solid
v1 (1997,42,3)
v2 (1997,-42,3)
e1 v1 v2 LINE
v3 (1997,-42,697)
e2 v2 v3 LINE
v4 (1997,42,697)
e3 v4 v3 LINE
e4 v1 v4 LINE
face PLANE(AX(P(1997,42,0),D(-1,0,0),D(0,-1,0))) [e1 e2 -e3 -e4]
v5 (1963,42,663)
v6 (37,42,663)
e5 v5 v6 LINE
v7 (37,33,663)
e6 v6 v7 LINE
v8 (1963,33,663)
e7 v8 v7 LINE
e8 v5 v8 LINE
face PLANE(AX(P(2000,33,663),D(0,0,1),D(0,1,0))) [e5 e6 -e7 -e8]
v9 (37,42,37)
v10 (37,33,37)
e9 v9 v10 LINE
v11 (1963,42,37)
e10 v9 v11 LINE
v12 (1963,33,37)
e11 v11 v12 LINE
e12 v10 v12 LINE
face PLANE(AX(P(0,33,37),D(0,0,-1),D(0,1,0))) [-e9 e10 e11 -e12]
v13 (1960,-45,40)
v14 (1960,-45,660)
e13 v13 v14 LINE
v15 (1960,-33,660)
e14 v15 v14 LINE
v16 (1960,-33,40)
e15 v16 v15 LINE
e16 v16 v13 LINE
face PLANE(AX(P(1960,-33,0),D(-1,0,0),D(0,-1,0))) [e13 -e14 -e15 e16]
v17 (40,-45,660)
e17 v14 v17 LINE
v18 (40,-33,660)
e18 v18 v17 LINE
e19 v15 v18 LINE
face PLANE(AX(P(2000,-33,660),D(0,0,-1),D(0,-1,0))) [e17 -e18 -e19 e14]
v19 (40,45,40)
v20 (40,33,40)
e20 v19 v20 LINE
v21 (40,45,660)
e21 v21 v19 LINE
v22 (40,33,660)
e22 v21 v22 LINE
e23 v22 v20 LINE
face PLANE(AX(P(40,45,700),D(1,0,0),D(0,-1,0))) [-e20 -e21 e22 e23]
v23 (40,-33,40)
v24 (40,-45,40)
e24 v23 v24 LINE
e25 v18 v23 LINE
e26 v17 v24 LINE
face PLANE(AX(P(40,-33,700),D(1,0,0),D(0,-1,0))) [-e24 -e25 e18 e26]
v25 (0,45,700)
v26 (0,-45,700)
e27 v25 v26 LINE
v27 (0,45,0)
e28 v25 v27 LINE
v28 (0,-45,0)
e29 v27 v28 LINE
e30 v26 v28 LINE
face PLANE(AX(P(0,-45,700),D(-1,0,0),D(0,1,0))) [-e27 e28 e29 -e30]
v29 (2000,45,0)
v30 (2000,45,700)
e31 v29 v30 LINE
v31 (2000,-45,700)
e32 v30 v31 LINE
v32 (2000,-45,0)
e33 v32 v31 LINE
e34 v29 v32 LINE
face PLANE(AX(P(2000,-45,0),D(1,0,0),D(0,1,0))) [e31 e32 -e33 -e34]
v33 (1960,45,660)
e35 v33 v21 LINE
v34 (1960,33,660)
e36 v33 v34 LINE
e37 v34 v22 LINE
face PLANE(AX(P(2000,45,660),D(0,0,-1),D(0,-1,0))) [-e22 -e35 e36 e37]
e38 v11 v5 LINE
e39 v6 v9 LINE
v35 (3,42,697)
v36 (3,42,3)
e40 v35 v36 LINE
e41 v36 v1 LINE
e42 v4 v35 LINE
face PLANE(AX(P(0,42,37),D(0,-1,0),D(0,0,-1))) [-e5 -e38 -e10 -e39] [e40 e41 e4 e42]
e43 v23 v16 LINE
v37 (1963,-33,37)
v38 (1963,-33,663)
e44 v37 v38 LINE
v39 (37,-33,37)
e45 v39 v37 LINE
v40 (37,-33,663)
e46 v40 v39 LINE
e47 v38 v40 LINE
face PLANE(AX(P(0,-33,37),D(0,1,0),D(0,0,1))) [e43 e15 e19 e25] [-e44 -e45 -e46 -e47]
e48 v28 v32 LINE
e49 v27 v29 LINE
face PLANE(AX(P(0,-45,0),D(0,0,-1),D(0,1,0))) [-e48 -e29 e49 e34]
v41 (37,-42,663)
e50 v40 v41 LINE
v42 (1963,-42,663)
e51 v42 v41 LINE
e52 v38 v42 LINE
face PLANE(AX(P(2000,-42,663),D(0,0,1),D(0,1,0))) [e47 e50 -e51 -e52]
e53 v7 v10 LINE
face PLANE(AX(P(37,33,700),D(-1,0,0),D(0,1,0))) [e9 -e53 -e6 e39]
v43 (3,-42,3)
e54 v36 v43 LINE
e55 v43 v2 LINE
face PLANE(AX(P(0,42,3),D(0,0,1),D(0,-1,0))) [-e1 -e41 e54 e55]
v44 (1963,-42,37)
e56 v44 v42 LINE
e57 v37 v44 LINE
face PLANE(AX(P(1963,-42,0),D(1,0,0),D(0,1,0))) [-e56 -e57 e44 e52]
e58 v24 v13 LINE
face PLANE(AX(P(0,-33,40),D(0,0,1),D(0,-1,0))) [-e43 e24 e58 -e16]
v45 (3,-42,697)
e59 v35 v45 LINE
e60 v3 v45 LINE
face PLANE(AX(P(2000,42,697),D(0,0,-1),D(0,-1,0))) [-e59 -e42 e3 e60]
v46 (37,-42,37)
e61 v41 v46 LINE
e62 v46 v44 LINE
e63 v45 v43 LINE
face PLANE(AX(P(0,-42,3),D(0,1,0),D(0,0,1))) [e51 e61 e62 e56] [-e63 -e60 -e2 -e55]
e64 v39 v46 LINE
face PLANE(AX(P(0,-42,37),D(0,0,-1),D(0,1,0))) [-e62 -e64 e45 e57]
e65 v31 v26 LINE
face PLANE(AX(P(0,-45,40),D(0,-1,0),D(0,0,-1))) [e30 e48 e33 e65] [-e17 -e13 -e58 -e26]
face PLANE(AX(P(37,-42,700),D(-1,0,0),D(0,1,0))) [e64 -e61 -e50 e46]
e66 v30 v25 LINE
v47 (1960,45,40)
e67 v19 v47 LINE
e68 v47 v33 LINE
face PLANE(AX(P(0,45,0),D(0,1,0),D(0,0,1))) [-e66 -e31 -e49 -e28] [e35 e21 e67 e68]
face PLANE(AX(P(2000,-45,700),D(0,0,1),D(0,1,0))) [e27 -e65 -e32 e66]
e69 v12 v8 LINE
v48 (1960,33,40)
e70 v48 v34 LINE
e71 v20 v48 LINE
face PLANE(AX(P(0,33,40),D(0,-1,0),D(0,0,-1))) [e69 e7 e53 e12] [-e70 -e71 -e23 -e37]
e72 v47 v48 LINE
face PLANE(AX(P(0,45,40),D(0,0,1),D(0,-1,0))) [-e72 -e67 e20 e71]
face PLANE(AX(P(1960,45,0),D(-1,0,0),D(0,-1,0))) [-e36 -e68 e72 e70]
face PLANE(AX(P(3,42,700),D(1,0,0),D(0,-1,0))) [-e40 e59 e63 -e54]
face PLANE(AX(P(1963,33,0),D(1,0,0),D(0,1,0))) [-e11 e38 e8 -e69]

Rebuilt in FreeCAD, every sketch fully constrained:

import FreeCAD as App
import Part
import Sketcher

V = App.Vector

doc = App.newDocument("Part")
body = doc.addObject("PartDesign::Body", "Body")

# Sketch on YZ plane
sketch1 = body.newObject("Sketcher::SketchObject", "Sketch")
sketch1.AttachmentSupport = (doc.getObject("YZ_Plane"), [""])
sketch1.MapMode = "FlatFace"
sketch1.addGeometry([
    Part.LineSegment(V(-45, 0, 0), V(45, 0, 0)),  # 0
    Part.LineSegment(V(45, 0, 0), V(45, 40, 0)),  # 1
    Part.LineSegment(V(45, 40, 0), V(33, 40, 0)),  # 2
    Part.LineSegment(V(33, 40, 0), V(33, 37, 0)),  # 3
    Part.LineSegment(V(33, 37, 0), V(42, 37, 0)),  # 4
    Part.LineSegment(V(42, 37, 0), V(42, 3, 0)),  # 5
    Part.LineSegment(V(42, 3, 0), V(-42, 3, 0)),  # 6
    Part.LineSegment(V(-42, 3, 0), V(-42, 37, 0)),  # 7
    Part.LineSegment(V(-42, 37, 0), V(-33, 37, 0)),  # 8
    Part.LineSegment(V(-33, 37, 0), V(-33, 40, 0)),  # 9
    Part.LineSegment(V(-33, 40, 0), V(-45, 40, 0)),  # 10
    Part.LineSegment(V(-45, 40, 0), V(-45, 0, 0)),  # 11
], False)
sketch1.addConstraint([
    Sketcher.Constraint("Coincident", 0, 2, 1, 1),
    Sketcher.Constraint("Coincident", 1, 2, 2, 1),
    Sketcher.Constraint("Coincident", 2, 2, 3, 1),
    Sketcher.Constraint("Coincident", 3, 2, 4, 1),
    Sketcher.Constraint("Coincident", 4, 2, 5, 1),
    Sketcher.Constraint("Coincident", 5, 2, 6, 1),
    Sketcher.Constraint("Coincident", 6, 2, 7, 1),
    Sketcher.Constraint("Coincident", 7, 2, 8, 1),
    Sketcher.Constraint("Coincident", 8, 2, 9, 1),
    Sketcher.Constraint("Coincident", 9, 2, 10, 1),
    Sketcher.Constraint("Coincident", 10, 2, 11, 1),
    Sketcher.Constraint("Coincident", 11, 2, 0, 1),
    Sketcher.Constraint("Horizontal", 0),
    Sketcher.Constraint("Vertical", 1),
    Sketcher.Constraint("Horizontal", 2),
    Sketcher.Constraint("Vertical", 3),
    Sketcher.Constraint("Horizontal", 4),
    Sketcher.Constraint("Vertical", 5),
    Sketcher.Constraint("Horizontal", 6),
    Sketcher.Constraint("Vertical", 7),
    Sketcher.Constraint("Horizontal", 8),
    Sketcher.Constraint("Vertical", 9),
    Sketcher.Constraint("Horizontal", 10),
    Sketcher.Constraint("Vertical", 11),
    Sketcher.Constraint("Symmetric", 0, 2, 11, 2, -1, 1),
    Sketcher.Constraint("Symmetric", 4, 2, 7, 2, -2),
    Sketcher.Constraint("Symmetric", 2, 2, 9, 2, -2),
    Sketcher.Constraint("DistanceX", 0, 1, 0, 2, 90.0),
    Sketcher.Constraint("DistanceX", 2, 2, 2, 1, 12.0),
    Sketcher.Constraint("DistanceX", 4, 1, 4, 2, 9.0),
    Sketcher.Constraint("DistanceY", 1, 1, 1, 2, 40.0),
    Sketcher.Constraint("DistanceY", 3, 2, 3, 1, 3.0),
    Sketcher.Constraint("DistanceY", 5, 2, 5, 1, 34.0),
])

# Sketch on XZ plane
sketch2 = body.newObject("Sketcher::SketchObject", "Sketch001")
sketch2.AttachmentSupport = (doc.getObject("XZ_Plane"), [""])
sketch2.MapMode = "FlatFace"
sketch2.addGeometry([
    Part.LineSegment(V(0, 0, 0), V(2000, 0, 0)),
    Part.LineSegment(V(2000, 0, 0), V(2000, 700, 0)),
    Part.LineSegment(V(2000, 700, 0), V(0, 700, 0)),
    Part.LineSegment(V(0, 700, 0), V(0, 0, 0)),
], False)
sketch2.addConstraint([
    Sketcher.Constraint("Coincident", 0, 2, 1, 1),
    Sketcher.Constraint("Coincident", 1, 2, 2, 1),
    Sketcher.Constraint("Coincident", 2, 2, 3, 1),
    Sketcher.Constraint("Coincident", 3, 2, 0, 1),
    Sketcher.Constraint("Horizontal", 0),
    Sketcher.Constraint("Vertical", 1),
    Sketcher.Constraint("Horizontal", 2),
    Sketcher.Constraint("Vertical", 3),
    Sketcher.Constraint("Coincident", 3, 2, -1, 1),
    Sketcher.Constraint("DistanceX", 0, 1, 0, 2, 2000.0),
    Sketcher.Constraint("DistanceY", 1, 1, 1, 2, 700.0),
])
doc.recompute()

additivepipe = body.newObject("PartDesign::AdditivePipe", "AdditivePipe")
additivepipe.Profile = sketch1
additivepipe.Spine = (sketch2, ["Edge1", "Edge2", "Edge3", "Edge4"])
additivepipe.Transition = "Right corner"

doc.recompute()
